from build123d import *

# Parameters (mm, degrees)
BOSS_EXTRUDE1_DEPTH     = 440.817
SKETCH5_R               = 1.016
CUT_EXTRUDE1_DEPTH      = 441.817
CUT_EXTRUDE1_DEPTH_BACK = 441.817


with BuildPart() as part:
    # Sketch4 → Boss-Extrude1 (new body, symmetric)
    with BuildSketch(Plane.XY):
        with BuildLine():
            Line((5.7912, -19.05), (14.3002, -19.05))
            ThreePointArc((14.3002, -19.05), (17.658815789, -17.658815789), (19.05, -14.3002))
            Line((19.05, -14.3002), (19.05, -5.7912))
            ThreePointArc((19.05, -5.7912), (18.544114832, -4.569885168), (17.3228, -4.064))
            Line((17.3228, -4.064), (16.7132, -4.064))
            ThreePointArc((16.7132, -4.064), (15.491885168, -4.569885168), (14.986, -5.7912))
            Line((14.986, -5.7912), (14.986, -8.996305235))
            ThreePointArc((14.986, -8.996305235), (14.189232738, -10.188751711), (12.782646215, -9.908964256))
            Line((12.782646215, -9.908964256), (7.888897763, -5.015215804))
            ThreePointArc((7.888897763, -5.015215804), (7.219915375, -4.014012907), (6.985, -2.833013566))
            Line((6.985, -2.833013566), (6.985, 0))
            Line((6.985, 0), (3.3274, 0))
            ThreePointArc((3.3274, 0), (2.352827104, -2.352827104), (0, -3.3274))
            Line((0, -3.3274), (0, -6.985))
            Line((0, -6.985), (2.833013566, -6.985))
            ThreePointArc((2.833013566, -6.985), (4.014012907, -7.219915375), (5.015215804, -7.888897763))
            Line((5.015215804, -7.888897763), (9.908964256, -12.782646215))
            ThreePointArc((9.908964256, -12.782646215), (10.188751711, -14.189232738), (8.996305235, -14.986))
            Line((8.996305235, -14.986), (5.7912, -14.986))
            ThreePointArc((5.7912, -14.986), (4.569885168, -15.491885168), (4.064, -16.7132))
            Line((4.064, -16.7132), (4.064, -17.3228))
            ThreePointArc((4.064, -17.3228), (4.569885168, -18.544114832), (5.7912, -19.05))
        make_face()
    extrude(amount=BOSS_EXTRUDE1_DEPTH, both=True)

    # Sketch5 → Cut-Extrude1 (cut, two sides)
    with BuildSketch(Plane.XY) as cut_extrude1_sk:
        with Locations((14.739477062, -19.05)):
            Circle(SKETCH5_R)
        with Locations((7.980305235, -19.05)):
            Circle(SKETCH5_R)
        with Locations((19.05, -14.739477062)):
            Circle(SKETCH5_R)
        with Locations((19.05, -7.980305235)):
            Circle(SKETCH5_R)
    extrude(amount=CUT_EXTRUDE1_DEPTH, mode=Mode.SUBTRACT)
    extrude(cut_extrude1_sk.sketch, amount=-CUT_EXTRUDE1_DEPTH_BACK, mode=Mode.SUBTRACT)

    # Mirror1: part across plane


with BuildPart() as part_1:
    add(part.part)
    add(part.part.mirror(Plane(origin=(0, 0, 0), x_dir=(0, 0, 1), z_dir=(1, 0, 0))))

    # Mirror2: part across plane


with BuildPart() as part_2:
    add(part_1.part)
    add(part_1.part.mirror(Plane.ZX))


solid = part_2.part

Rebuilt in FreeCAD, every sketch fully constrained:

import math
import FreeCAD as App
import Part
import Sketcher
Q = App.Units.Quantity

doc = App.newDocument("Part")
body = doc.addObject("PartDesign::Body", "Body")

# Sketch on XY plane
sketch1 = body.newObject("Sketcher::SketchObject", "Sketch")
sketch1.AttachmentSupport = (doc.getObject("XY_Plane"), [""])
sketch1.MapMode = "FlatFace"
sketch1.addGeometry([
    Part.LineSegment(App.Vector(5.8, -19.1, 0), App.Vector(14.3, -19.1, 0)),  # 0
    Part.ArcOfCircle(Part.Circle(App.Vector(14.3, -14.3, 0), App.Vector(0, 0, 1), 4.7), math.radians(-90), math.radians(0)),  # 1
    Part.LineSegment(App.Vector(19.1, -14.3, 0), App.Vector(19.1, -5.8, 0)),  # 2
    Part.ArcOfCircle(Part.Circle(App.Vector(17.3, -5.8, 0), App.Vector(0, 0, 1), 1.7), math.radians(0), math.radians(90)),  # 3
    Part.LineSegment(App.Vector(17.3, -4.1, 0), App.Vector(16.7, -4.1, 0)),  # 4
    Part.ArcOfCircle(Part.Circle(App.Vector(16.7, -5.8, 0), App.Vector(0, 0, 1), 1.7), math.radians(90), math.radians(180)),  # 5
    Part.LineSegment(App.Vector(15, -5.8, 0), App.Vector(15, -9, 0)),  # 6
    Part.ArcOfCircle(Part.Circle(App.Vector(13.7, -9, 0), App.Vector(0, 0, 1), 1.3), math.radians(-135), math.radians(0)),  # 7
    Part.LineSegment(App.Vector(12.8, -9.9, 0), App.Vector(7.9, -5, 0)),  # 8
    Part.ArcOfCircle(Part.Circle(App.Vector(10.1, -2.8, 0), App.Vector(0, 0, 1), 3.1), math.radians(-180), math.radians(-135)),  # 9
    Part.LineSegment(App.Vector(7, -2.8, 0), App.Vector(7, 0, 0)),  # 10
    Part.LineSegment(App.Vector(7, 0, 0), App.Vector(3.3, 0, 0)),  # 11
    Part.ArcOfCircle(Part.Circle(App.Vector(0, 0, 0), App.Vector(0, 0, 1), 3.3), math.radians(-90), math.radians(0)),  # 12
    Part.LineSegment(App.Vector(0, -3.3, 0), App.Vector(0, -7, 0)),  # 13
    Part.LineSegment(App.Vector(0, -7, 0), App.Vector(2.8, -7, 0)),  # 14
    Part.ArcOfCircle(Part.Circle(App.Vector(2.8, -10.1, 0), App.Vector(0, 0, 1), 3.1), math.radians(45), math.radians(90)),  # 15
    Part.LineSegment(App.Vector(5, -7.9, 0), App.Vector(9.9, -12.8, 0)),  # 16
    Part.ArcOfCircle(Part.Circle(App.Vector(9, -13.7, 0), App.Vector(0, 0, 1), 1.3), math.radians(-90), math.radians(45)),  # 17
    Part.LineSegment(App.Vector(9, -15, 0), App.Vector(5.8, -15, 0)),  # 18
    Part.ArcOfCircle(Part.Circle(App.Vector(5.8, -16.7, 0), App.Vector(0, 0, 1), 1.7), math.radians(90), math.radians(180)),  # 19
    Part.LineSegment(App.Vector(4.1, -16.7, 0), App.Vector(4.1, -17.3, 0)),  # 20
    Part.ArcOfCircle(Part.Circle(App.Vector(5.8, -17.3, 0), App.Vector(0, 0, 1), 1.7), math.radians(-180), math.radians(-90)),  # 21
], False)
sketch1.addConstraint([
    Sketcher.Constraint("Tangent", 0, 2, 1, 1),
    Sketcher.Constraint("Tangent", 1, 2, 2, 1),
    Sketcher.Constraint("Tangent", 2, 2, 3, 1),
    Sketcher.Constraint("Tangent", 3, 2, 4, 1),
    Sketcher.Constraint("Tangent", 4, 2, 5, 1),
    Sketcher.Constraint("Tangent", 5, 2, 6, 1),
    Sketcher.Constraint("Tangent", 6, 2, 7, 2),
    Sketcher.Constraint("Tangent", 7, 1, 8, 1),
    Sketcher.Constraint("Tangent", 8, 2, 9, 2),
    Sketcher.Constraint("Tangent", 9, 1, 10, 1),
    Sketcher.Constraint("Coincident", 10, 2, 11, 1),
    Sketcher.Constraint("Coincident", 11, 2, 12, 2),
    Sketcher.Constraint("Coincident", 12, 1, 13, 1),
    Sketcher.Constraint("Coincident", 13, 2, 14, 1),
    Sketcher.Constraint("Tangent", 14, 2, 15, 2),
    Sketcher.Constraint("Tangent", 15, 1, 16, 1),
    Sketcher.Constraint("Tangent", 16, 2, 17, 2),
    Sketcher.Constraint("Tangent", 17, 1, 18, 1),
    Sketcher.Constraint("Tangent", 18, 2, 19, 1),
    Sketcher.Constraint("Tangent", 19, 2, 20, 1),
    Sketcher.Constraint("Tangent", 20, 2, 21, 1),
    Sketcher.Constraint("Tangent", 21, 2, 0, 1),
    Sketcher.Constraint("Horizontal", 0),
    Sketcher.Constraint("Vertical", 2),
    Sketcher.Constraint("Horizontal", 4),
    Sketcher.Constraint("Vertical", 6),
    Sketcher.Constraint("Vertical", 10),
    Sketcher.Constraint("Horizontal", 11),
    Sketcher.Constraint("Vertical", 13),
    Sketcher.Constraint("Horizontal", 14),
    Sketcher.Constraint("Horizontal", 18),
    Sketcher.Constraint("Vertical", 20),
    Sketcher.Constraint("Coincident", 12, 3, -1, 1),
    Sketcher.Constraint("Equal", 3, 5),
    Sketcher.Constraint("Equal", 9, 15),
    Sketcher.Constraint("Equal", 7, 17),
    Sketcher.Constraint("Equal", 5, 19),
    Sketcher.Constraint("Equal", 19, 21),
    Sketcher.Constraint("PointOnObject", 10, 2, -1),
    Sketcher.Constraint("PointOnObject", 12, 1, -2),
    Sketcher.Constraint("Parallel", 8, 16),
    Sketcher.Constraint("Equal", 0, 2),
    Sketcher.Constraint("Equal", 18, 6),
    Sketcher.Constraint("Equal", 14, 10),
    Sketcher.Constraint("Equal", 11, 13),
    Sketcher.Constraint("Equal", 4, 20),
    Sketcher.Constraint("Equal", 8, 16),
    Sketcher.Constraint("Radius", 1, Q("0.187 in")),
    Sketcher.Constraint("Radius", 3, Q("0.068 in")),
    Sketcher.Constraint("Radius", 12, Q("0.131 in")),
    Sketcher.Constraint("Radius", 9, Q("0.1215 in")),
    Sketcher.Constraint("DistanceX", 0, 1, 0, 2, Q("0.335 in")),
    Sketcher.Constraint("DistanceX", 4, 2, 4, 1, Q("0.024 in")),
    Sketcher.Constraint("DistanceX", 11, 2, 11, 1, Q("0.144 in")),
    Sketcher.Constraint("DistanceY", 0, 2, -1, 1, Q("0.75 in")),
    Sketcher.Constraint("DistanceX", 17, 3, 7, 3, Q("0.185 in")),
    Sketcher.Constraint("Radius", 7, Q("1.290695 mm")),
])
pad1 = body.newObject("PartDesign::Pad", "Pad")
pad1.Profile = sketch1
pad1.Length = Q("34.71 in")
pad1.Midplane = True

# Sketch on XY plane
sketch2 = body.newObject("Sketcher::SketchObject", "Sketch001")
sketch2.AttachmentSupport = (doc.getObject("XY_Plane"), [""])
sketch2.MapMode = "FlatFace"
sketch2.addGeometry([
    Part.Circle(App.Vector(14.7, -19.1, 0), App.Vector(0, 0, 1), 1),
    Part.Circle(App.Vector(8, -19.1, 0), App.Vector(0, 0, 1), 1),
    Part.Circle(App.Vector(19.1, -14.7, 0), App.Vector(0, 0, 1), 1),
    Part.Circle(App.Vector(19.1, -8, 0), App.Vector(0, 0, 1), 1),
], False)
sketch2.addConstraint([
    Sketcher.Constraint("Equal", 0, 1),
    Sketcher.Constraint("Equal", 1, 2),
    Sketcher.Constraint("Equal", 2, 3),
    Sketcher.Constraint("Horizontal", 0, 3, 1, 3),
    Sketcher.Constraint("Vertical", 2, 3, 3, 3),
    Sketcher.Constraint("Diameter", 0, Q("0.08 in")),
    Sketcher.Constraint("DistanceY", 0, 3, -1, 1, Q("0.75 in")),
    Sketcher.Constraint("DistanceX", -1, 1, 2, 3, Q("0.75 in")),
    Sketcher.Constraint("DistanceX", 1, 3, 0, 3, Q("6.759172 mm")),
    Sketcher.Constraint("DistanceY", 2, 3, 3, 3, Q("6.759172 mm")),
    Sketcher.Constraint("DistanceX", -1, 1, 0, 3, Q("14.739477 mm")),
    Sketcher.Constraint("DistanceY", 2, 3, -1, 1, Q("14.739477 mm")),
])
pocket1 = body.newObject("PartDesign::Pocket", "Pocket")
pocket1.Profile = sketch2
pocket1.Type = "ThroughAll"
pocket1.Midplane = True
body2 = doc.addObject("PartDesign::Body", "Body001")
doc.recompute()

body2.BaseFeature = body
doc.recompute()

mirroring = doc.addObject("Part::Mirroring", "Mirroring")
mirroring.Source = body
mirroring.Base = App.Vector(0, 0, 0)
mirroring.Normal = App.Vector(1, 0, 0)
body3 = doc.addObject("PartDesign::Body", "Body002")
body3.BaseFeature = mirroring
boolean = body2.newObject("PartDesign::Boolean", "Boolean")
boolean.Type = "Fuse"
boolean.addObjects([body3])
doc.recompute()
body4 = doc.addObject("PartDesign::Body", "Body003")
doc.recompute()

body4.BaseFeature = body2
doc.recompute()

mirroring2 = doc.addObject("Part::Mirroring", "Mirroring001")
mirroring2.Source = body2
mirroring2.Base = App.Vector(0, 0, 0)
mirroring2.Normal = App.Vector(0, 1, 0)
body5 = doc.addObject("PartDesign::Body", "Body004")
body5.BaseFeature = mirroring2
boolean2 = body4.newObject("PartDesign::Boolean", "Boolean001")
boolean2.Type = "Fuse"
boolean2.addObjects([body5])
doc.recompute()
mirroring.Visibility = False
mirroring2.Visibility = False

doc.recompute()
